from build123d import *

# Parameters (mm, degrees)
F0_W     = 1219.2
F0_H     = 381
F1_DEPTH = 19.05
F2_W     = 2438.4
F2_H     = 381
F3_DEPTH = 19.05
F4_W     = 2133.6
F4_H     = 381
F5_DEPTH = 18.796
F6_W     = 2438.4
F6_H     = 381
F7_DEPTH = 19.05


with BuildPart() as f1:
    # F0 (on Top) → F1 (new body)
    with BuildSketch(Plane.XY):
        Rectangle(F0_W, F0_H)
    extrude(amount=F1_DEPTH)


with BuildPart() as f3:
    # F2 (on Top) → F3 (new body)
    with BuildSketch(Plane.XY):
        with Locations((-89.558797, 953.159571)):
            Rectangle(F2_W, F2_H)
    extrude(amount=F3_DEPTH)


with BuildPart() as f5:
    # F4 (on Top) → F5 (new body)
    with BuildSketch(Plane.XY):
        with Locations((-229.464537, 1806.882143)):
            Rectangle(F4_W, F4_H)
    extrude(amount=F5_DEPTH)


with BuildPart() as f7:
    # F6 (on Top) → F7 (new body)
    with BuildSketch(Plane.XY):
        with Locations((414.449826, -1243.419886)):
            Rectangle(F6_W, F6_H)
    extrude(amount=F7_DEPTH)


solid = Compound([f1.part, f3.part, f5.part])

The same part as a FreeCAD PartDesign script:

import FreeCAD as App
import Part
import Sketcher
from FreeCAD import Vector
Q = App.Units.Quantity


def add_polygon(sketch, points):
    """Adds a closed chain of lines whose ends are joined by coincident constraints."""
    first, n = sketch.GeometryCount, len(points)
    for a, b in zip(points, points[1:] + points[:1]):
        sketch.addGeometry(Part.LineSegment(App.Vector(*a, 0), App.Vector(*b, 0)), False)
    for i in range(n):
        sketch.addConstraint(Sketcher.Constraint("Coincident", first + i, 2, first + (i + 1) % n, 1))

doc = App.newDocument("Part")
params = doc.addObject("Spreadsheet::Sheet", "Params")
for row, (alias, value) in enumerate([
    ("sketch1_width", "48 in"),
    ("sketch1_height", "15 in"),
    ("pad1_length", "0.75 in"),
    ("sketch2_width", "96 in"),
    ("sketch2_height", "15 in"),
    ("pad2_length", "0.75 in"),
    ("sketch3_width", "84 in"),
    ("sketch3_height", "15 in"),
    ("pad3_length", "0.74 in"),
    ("sketch4_width", "96 in"),
    ("sketch4_height", "15 in"),
    ("pad4_length", "0.75 in"),
], start=1):
    params.set(f"A{row}", alias)
    params.set(f"B{row}", "=" + value)
    params.setAlias(f"B{row}", alias)

body = doc.addObject("PartDesign::Body", "Body")

sketch1 = doc.addObject("Sketcher::SketchObject", "Sketch")
body.addObject(sketch1)
sketch1.AttachmentSupport = (doc.XY_Plane, [""])
sketch1.MapMode = "FlatFace"
add_polygon(sketch1, [(-610, 190), (-610, -190), (610, -190), (610, 190)])
sketch1.addConstraint([
    Sketcher.Constraint("Vertical", 0),
    Sketcher.Constraint("Horizontal", 1),
    Sketcher.Constraint("Vertical", 2),
    Sketcher.Constraint("Horizontal", 3),
    Sketcher.Constraint("Symmetric", 0, 2, 2, 2, -1, 1),
    Sketcher.Constraint("DistanceX", 1, 1, 1, 2, Q("48 in")),
    Sketcher.Constraint("DistanceY", 0, 2, 0, 1, Q("15 in")),
])
sketch1.setExpression("Constraints[9]", "Params.sketch1_width")
sketch1.setExpression("Constraints[10]", "Params.sketch1_height")
pad1 = doc.addObject("PartDesign::Pad", "Pad")
body.addObject(pad1)
pad1.Profile = sketch1
pad1.setExpression("Length", "Params.pad1_length")
body2 = doc.addObject("PartDesign::Body", "Body001")

sketch2 = doc.addObject("Sketcher::SketchObject", "Sketch001")
body2.addObject(sketch2)
sketch2.AttachmentSupport = (doc.getObject("XY_Plane001"), [""])
sketch2.MapMode = "FlatFace"
add_polygon(sketch2, [(-1309, 1144), (-1309, 763), (1130, 763), (1130, 1144)])
sketch2.addConstraint([
    Sketcher.Constraint("Vertical", 0),
    Sketcher.Constraint("Horizontal", 1),
    Sketcher.Constraint("Vertical", 2),
    Sketcher.Constraint("Horizontal", 3),
    Sketcher.Constraint("DistanceX", 1, 1, 1, 2, Q("96 in")),
    Sketcher.Constraint("DistanceY", 0, 2, 0, 1, Q("15 in")),
    Sketcher.Constraint("DistanceY", -1, 1, 0, 2, 762.659571),
    Sketcher.Constraint("DistanceX", 0, 2, -1, 1, 1308.758797),
])
sketch2.setExpression("Constraints[8]", "Params.sketch2_width")
sketch2.setExpression("Constraints[9]", "Params.sketch2_height")
pad2 = doc.addObject("PartDesign::Pad", "Pad001")
body2.addObject(pad2)
pad2.Profile = sketch2
pad2.setExpression("Length", "Params.pad2_length")
body3 = doc.addObject("PartDesign::Body", "Body002")

sketch3 = doc.addObject("Sketcher::SketchObject", "Sketch002")
body3.addObject(sketch3)
sketch3.AttachmentSupport = (doc.getObject("XY_Plane002"), [""])
sketch3.MapMode = "FlatFace"
add_polygon(sketch3, [(-1296, 1997), (-1296, 1616), (837, 1616), (837, 1997)])
sketch3.addConstraint([
    Sketcher.Constraint("Vertical", 0),
    Sketcher.Constraint("Horizontal", 1),
    Sketcher.Constraint("Vertical", 2),
    Sketcher.Constraint("Horizontal", 3),
    Sketcher.Constraint("DistanceX", 1, 1, 1, 2, Q("84 in")),
    Sketcher.Constraint("DistanceY", 0, 2, 0, 1, Q("15 in")),
    Sketcher.Constraint("DistanceX", 0, 2, -1, 1, 1296.264537),
    Sketcher.Constraint("DistanceY", -1, 1, 0, 2, 1616.382143),
])
sketch3.setExpression("Constraints[8]", "Params.sketch3_width")
sketch3.setExpression("Constraints[9]", "Params.sketch3_height")
pad3 = doc.addObject("PartDesign::Pad", "Pad002")
body3.addObject(pad3)
pad3.Profile = sketch3
pad3.setExpression("Length", "Params.pad3_length")
body4 = doc.addObject("PartDesign::Body", "Body003")

sketch4 = doc.addObject("Sketcher::SketchObject", "Sketch003")
body4.addObject(sketch4)
sketch4.AttachmentSupport = (doc.getObject("XY_Plane003"), [""])
sketch4.MapMode = "FlatFace"
add_polygon(sketch4, [(-805, -1053), (-805, -1434), (1634, -1434), (1634, -1053)])
sketch4.addConstraint([
    Sketcher.Constraint("Vertical", 0),
    Sketcher.Constraint("Horizontal", 1),
    Sketcher.Constraint("Vertical", 2),
    Sketcher.Constraint("Horizontal", 3),
    Sketcher.Constraint("DistanceX", 1, 1, 1, 2, Q("96 in")),
    Sketcher.Constraint("DistanceY", 0, 2, 0, 1, Q("15 in")),
    Sketcher.Constraint("DistanceX", 0, 2, -1, 1, 804.750174),
    Sketcher.Constraint("DistanceY", 0, 2, -1, 1, 1433.919886),
])
sketch4.setExpression("Constraints[8]", "Params.sketch4_width")
sketch4.setExpression("Constraints[9]", "Params.sketch4_height")
pad4 = doc.addObject("PartDesign::Pad", "Pad003")
body4.addObject(pad4)
pad4.Profile = sketch4
pad4.setExpression("Length", "Params.pad4_length")
body4.Visibility = False

doc.recompute()
